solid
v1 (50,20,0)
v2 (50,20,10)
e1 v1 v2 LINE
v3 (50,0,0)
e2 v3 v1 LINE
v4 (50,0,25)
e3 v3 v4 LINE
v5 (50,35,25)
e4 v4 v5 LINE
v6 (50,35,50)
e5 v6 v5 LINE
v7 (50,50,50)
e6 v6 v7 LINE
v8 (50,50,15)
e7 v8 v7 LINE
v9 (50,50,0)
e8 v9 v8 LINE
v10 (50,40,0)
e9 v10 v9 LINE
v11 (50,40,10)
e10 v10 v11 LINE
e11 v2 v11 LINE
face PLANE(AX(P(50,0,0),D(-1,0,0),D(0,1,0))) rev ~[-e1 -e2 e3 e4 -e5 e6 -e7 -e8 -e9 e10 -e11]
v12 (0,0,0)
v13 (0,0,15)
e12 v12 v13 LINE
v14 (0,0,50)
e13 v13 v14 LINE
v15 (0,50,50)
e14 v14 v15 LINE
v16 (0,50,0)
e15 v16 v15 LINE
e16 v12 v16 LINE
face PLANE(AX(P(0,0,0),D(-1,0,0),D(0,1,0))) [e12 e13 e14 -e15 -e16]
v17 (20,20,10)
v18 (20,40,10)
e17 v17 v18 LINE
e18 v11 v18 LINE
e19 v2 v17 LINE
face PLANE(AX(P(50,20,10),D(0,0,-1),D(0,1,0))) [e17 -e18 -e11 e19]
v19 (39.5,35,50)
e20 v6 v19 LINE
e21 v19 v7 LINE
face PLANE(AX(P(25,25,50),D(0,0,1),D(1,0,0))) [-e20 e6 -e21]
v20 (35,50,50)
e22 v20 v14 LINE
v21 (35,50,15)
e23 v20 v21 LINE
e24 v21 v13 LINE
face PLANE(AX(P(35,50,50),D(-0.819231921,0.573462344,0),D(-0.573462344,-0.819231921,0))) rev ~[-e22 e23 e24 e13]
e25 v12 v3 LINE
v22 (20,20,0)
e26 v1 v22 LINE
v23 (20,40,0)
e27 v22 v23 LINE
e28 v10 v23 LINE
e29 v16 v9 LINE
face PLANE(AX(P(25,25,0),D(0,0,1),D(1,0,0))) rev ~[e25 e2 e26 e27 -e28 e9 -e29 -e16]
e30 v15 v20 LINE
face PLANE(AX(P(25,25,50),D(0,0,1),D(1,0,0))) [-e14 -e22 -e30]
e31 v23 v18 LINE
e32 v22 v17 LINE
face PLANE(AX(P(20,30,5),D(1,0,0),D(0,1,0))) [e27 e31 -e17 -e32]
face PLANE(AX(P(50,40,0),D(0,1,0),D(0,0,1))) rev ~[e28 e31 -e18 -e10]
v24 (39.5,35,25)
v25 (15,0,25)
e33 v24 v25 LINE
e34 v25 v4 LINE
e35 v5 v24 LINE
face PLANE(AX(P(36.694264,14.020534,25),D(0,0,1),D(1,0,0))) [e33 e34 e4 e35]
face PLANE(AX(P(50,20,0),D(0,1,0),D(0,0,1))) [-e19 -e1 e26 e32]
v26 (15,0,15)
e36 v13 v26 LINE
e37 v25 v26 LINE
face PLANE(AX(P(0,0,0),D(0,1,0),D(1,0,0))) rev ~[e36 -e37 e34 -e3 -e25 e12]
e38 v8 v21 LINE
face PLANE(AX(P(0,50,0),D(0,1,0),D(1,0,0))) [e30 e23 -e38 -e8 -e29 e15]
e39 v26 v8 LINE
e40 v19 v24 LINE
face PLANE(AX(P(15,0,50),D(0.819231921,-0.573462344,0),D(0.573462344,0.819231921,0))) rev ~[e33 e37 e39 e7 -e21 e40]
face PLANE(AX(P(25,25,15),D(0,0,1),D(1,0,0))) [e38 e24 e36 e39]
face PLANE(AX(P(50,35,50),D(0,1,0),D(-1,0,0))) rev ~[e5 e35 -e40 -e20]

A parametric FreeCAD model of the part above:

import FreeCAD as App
import Part
import Sketcher

V = App.Vector


def add_polygon(sketch, points):
    """Adds a closed chain of lines whose ends are joined by coincident constraints."""
    first, n = sketch.GeometryCount, len(points)
    for a, b in zip(points, points[1:] + points[:1]):
        sketch.addGeometry(Part.LineSegment(App.Vector(*a, 0), App.Vector(*b, 0)), False)
    for i in range(n):
        sketch.addConstraint(Sketcher.Constraint("Coincident", first + i, 2, first + (i + 1) % n, 1))

doc = App.newDocument("Part")
params = doc.addObject("Spreadsheet::Sheet", "Params")
for row, (alias, value) in enumerate([
    ("sketch1_width", "50 mm"),
    ("pad1_length", "50 mm"),
    ("sketch2_width", "15 mm"),
    ("pocket1_length", "35 mm"),
    ("sketch3_width", "20 mm"),
    ("sketch3_height", "10 mm"),
    ("pocket2_length", "30 mm"),
    ("sketch4_width", "35 mm"),
    ("sketch4_width2", "10.5 mm"),
    ("pocket3_length", "25 mm"),
], start=1):
    params.set(f"A{row}", alias)
    params.set(f"B{row}", "=" + value)
    params.setAlias(f"B{row}", alias)

body = doc.addObject("PartDesign::Body", "Body")

# Sketch on XY plane
sketch1 = body.newObject("Sketcher::SketchObject", "Sketch")
sketch1.AttachmentSupport = (doc.getObject("XY_Plane"), [""])
sketch1.MapMode = "FlatFace"
add_polygon(sketch1, [(0, 50), (0, 0), (50, 0), (50, 50)])  # lines 0-3
sketch1.addConstraint(Sketcher.Constraint("Vertical", 0))
sketch1.addConstraint(Sketcher.Constraint("Horizontal", 1))
sketch1.addConstraint(Sketcher.Constraint("Vertical", 2))
sketch1.addConstraint(Sketcher.Constraint("Horizontal", 3))
sketch1.addConstraint(Sketcher.Constraint("Coincident", 0, 2, -1, 1))
sketch1.addConstraint(Sketcher.Constraint("Equal", 3, 0))
sketch1.addConstraint(Sketcher.Constraint("DistanceX", 1, 1, 1, 2, 50.0))
sketch1.setExpression("Constraints[10]", "Params.sketch1_width")
pad1 = body.newObject("PartDesign::Pad", "Pad")
pad1.Profile = sketch1
pad1.setExpression("Length", "Params.pad1_length")

# Sketch on XY plane
sketch2 = body.newObject("Sketcher::SketchObject", "Sketch001")
sketch2.AttachmentSupport = (doc.getObject("XY_Plane"), [""])
sketch2.MapMode = "FlatFace"
sketch2.AttachmentOffset = App.Placement(V(0, 0, 50), App.Rotation())
add_polygon(sketch2, [(15, 0), (50, 50), (35, 50), (0, 0)])  # lines 0-3
sketch2.addConstraint(Sketcher.Constraint("Horizontal", 1))
sketch2.addConstraint(Sketcher.Constraint("Horizontal", 3))
sketch2.addConstraint(Sketcher.Constraint("Coincident", 2, 2, -1, 1))
sketch2.addConstraint(Sketcher.Constraint("Parallel", 0, 2))
sketch2.addConstraint(Sketcher.Constraint("DistanceX", 1, 2, 1, 1, 15.0))
sketch2.addConstraint(Sketcher.Constraint("DistanceX", -1, 1, 0, 2, 50.0))
sketch2.addConstraint(Sketcher.Constraint("DistanceY", -1, 1, 0, 2, 50.0))
sketch2.setExpression("Constraints[8]", "Params.sketch2_width")
pocket1 = body.newObject("PartDesign::Pocket", "Pocket")
pocket1.Profile = sketch2
pocket1.setExpression("Length", "Params.pocket1_length")

# Sketch on YZ plane
sketch3 = body.newObject("Sketcher::SketchObject", "Sketch002")
sketch3.AttachmentSupport = (doc.getObject("YZ_Plane"), [""])
sketch3.MapMode = "FlatFace"
sketch3.AttachmentOffset = App.Placement(V(0, 0, 50), App.Rotation())
add_polygon(sketch3, [(20, 10), (20, 0), (40, 0), (40, 10)])  # lines 0-3
sketch3.addConstraint(Sketcher.Constraint("Vertical", 0))
sketch3.addConstraint(Sketcher.Constraint("Horizontal", 1))
sketch3.addConstraint(Sketcher.Constraint("Vertical", 2))
sketch3.addConstraint(Sketcher.Constraint("Horizontal", 3))
sketch3.addConstraint(Sketcher.Constraint("PointOnObject", 0, 2, -1))
sketch3.addConstraint(Sketcher.Constraint("DistanceX", 1, 1, 1, 2, 20.0))
sketch3.addConstraint(Sketcher.Constraint("DistanceY", 0, 2, 0, 1, 10.0))
sketch3.addConstraint(Sketcher.Constraint("DistanceX", -1, 1, 0, 2, 20.0))
sketch3.setExpression("Constraints[9]", "Params.sketch3_width")
sketch3.setExpression("Constraints[10]", "Params.sketch3_height")
pocket2 = body.newObject("PartDesign::Pocket", "Pocket001")
pocket2.Profile = sketch3
pocket2.setExpression("Length", "Params.pocket2_length")

# Sketch on XY plane
sketch4 = body.newObject("Sketcher::SketchObject", "Sketch003")
sketch4.AttachmentSupport = (doc.getObject("XY_Plane"), [""])
sketch4.MapMode = "FlatFace"
sketch4.AttachmentOffset = App.Placement(V(0, 0, 50), App.Rotation())
add_polygon(sketch4, [(50, 35), (40, 35), (15, 0), (50, 0)])  # lines 0-3
sketch4.addConstraint(Sketcher.Constraint("Horizontal", 0))
sketch4.addConstraint(Sketcher.Constraint("Horizontal", 2))
sketch4.addConstraint(Sketcher.Constraint("Vertical", 3))
sketch4.addConstraint(Sketcher.Constraint("PointOnObject", 1, 2, -1))
sketch4.addConstraint(Sketcher.Constraint("Equal", 2, 3))
sketch4.addConstraint(Sketcher.Constraint("DistanceX", 2, 1, 2, 2, 35.0))
sketch4.addConstraint(Sketcher.Constraint("DistanceX", 0, 2, 0, 1, 10.5))
sketch4.addConstraint(Sketcher.Constraint("DistanceX", -1, 1, 1, 2, 15.0))
sketch4.setExpression("Constraints[9]", "Params.sketch4_width")
sketch4.setExpression("Constraints[10]", "Params.sketch4_width2")
pocket3 = body.newObject("PartDesign::Pocket", "Pocket002")
pocket3.Profile = sketch4
pocket3.setExpression("Length", "Params.pocket3_length")

doc.recompute()
